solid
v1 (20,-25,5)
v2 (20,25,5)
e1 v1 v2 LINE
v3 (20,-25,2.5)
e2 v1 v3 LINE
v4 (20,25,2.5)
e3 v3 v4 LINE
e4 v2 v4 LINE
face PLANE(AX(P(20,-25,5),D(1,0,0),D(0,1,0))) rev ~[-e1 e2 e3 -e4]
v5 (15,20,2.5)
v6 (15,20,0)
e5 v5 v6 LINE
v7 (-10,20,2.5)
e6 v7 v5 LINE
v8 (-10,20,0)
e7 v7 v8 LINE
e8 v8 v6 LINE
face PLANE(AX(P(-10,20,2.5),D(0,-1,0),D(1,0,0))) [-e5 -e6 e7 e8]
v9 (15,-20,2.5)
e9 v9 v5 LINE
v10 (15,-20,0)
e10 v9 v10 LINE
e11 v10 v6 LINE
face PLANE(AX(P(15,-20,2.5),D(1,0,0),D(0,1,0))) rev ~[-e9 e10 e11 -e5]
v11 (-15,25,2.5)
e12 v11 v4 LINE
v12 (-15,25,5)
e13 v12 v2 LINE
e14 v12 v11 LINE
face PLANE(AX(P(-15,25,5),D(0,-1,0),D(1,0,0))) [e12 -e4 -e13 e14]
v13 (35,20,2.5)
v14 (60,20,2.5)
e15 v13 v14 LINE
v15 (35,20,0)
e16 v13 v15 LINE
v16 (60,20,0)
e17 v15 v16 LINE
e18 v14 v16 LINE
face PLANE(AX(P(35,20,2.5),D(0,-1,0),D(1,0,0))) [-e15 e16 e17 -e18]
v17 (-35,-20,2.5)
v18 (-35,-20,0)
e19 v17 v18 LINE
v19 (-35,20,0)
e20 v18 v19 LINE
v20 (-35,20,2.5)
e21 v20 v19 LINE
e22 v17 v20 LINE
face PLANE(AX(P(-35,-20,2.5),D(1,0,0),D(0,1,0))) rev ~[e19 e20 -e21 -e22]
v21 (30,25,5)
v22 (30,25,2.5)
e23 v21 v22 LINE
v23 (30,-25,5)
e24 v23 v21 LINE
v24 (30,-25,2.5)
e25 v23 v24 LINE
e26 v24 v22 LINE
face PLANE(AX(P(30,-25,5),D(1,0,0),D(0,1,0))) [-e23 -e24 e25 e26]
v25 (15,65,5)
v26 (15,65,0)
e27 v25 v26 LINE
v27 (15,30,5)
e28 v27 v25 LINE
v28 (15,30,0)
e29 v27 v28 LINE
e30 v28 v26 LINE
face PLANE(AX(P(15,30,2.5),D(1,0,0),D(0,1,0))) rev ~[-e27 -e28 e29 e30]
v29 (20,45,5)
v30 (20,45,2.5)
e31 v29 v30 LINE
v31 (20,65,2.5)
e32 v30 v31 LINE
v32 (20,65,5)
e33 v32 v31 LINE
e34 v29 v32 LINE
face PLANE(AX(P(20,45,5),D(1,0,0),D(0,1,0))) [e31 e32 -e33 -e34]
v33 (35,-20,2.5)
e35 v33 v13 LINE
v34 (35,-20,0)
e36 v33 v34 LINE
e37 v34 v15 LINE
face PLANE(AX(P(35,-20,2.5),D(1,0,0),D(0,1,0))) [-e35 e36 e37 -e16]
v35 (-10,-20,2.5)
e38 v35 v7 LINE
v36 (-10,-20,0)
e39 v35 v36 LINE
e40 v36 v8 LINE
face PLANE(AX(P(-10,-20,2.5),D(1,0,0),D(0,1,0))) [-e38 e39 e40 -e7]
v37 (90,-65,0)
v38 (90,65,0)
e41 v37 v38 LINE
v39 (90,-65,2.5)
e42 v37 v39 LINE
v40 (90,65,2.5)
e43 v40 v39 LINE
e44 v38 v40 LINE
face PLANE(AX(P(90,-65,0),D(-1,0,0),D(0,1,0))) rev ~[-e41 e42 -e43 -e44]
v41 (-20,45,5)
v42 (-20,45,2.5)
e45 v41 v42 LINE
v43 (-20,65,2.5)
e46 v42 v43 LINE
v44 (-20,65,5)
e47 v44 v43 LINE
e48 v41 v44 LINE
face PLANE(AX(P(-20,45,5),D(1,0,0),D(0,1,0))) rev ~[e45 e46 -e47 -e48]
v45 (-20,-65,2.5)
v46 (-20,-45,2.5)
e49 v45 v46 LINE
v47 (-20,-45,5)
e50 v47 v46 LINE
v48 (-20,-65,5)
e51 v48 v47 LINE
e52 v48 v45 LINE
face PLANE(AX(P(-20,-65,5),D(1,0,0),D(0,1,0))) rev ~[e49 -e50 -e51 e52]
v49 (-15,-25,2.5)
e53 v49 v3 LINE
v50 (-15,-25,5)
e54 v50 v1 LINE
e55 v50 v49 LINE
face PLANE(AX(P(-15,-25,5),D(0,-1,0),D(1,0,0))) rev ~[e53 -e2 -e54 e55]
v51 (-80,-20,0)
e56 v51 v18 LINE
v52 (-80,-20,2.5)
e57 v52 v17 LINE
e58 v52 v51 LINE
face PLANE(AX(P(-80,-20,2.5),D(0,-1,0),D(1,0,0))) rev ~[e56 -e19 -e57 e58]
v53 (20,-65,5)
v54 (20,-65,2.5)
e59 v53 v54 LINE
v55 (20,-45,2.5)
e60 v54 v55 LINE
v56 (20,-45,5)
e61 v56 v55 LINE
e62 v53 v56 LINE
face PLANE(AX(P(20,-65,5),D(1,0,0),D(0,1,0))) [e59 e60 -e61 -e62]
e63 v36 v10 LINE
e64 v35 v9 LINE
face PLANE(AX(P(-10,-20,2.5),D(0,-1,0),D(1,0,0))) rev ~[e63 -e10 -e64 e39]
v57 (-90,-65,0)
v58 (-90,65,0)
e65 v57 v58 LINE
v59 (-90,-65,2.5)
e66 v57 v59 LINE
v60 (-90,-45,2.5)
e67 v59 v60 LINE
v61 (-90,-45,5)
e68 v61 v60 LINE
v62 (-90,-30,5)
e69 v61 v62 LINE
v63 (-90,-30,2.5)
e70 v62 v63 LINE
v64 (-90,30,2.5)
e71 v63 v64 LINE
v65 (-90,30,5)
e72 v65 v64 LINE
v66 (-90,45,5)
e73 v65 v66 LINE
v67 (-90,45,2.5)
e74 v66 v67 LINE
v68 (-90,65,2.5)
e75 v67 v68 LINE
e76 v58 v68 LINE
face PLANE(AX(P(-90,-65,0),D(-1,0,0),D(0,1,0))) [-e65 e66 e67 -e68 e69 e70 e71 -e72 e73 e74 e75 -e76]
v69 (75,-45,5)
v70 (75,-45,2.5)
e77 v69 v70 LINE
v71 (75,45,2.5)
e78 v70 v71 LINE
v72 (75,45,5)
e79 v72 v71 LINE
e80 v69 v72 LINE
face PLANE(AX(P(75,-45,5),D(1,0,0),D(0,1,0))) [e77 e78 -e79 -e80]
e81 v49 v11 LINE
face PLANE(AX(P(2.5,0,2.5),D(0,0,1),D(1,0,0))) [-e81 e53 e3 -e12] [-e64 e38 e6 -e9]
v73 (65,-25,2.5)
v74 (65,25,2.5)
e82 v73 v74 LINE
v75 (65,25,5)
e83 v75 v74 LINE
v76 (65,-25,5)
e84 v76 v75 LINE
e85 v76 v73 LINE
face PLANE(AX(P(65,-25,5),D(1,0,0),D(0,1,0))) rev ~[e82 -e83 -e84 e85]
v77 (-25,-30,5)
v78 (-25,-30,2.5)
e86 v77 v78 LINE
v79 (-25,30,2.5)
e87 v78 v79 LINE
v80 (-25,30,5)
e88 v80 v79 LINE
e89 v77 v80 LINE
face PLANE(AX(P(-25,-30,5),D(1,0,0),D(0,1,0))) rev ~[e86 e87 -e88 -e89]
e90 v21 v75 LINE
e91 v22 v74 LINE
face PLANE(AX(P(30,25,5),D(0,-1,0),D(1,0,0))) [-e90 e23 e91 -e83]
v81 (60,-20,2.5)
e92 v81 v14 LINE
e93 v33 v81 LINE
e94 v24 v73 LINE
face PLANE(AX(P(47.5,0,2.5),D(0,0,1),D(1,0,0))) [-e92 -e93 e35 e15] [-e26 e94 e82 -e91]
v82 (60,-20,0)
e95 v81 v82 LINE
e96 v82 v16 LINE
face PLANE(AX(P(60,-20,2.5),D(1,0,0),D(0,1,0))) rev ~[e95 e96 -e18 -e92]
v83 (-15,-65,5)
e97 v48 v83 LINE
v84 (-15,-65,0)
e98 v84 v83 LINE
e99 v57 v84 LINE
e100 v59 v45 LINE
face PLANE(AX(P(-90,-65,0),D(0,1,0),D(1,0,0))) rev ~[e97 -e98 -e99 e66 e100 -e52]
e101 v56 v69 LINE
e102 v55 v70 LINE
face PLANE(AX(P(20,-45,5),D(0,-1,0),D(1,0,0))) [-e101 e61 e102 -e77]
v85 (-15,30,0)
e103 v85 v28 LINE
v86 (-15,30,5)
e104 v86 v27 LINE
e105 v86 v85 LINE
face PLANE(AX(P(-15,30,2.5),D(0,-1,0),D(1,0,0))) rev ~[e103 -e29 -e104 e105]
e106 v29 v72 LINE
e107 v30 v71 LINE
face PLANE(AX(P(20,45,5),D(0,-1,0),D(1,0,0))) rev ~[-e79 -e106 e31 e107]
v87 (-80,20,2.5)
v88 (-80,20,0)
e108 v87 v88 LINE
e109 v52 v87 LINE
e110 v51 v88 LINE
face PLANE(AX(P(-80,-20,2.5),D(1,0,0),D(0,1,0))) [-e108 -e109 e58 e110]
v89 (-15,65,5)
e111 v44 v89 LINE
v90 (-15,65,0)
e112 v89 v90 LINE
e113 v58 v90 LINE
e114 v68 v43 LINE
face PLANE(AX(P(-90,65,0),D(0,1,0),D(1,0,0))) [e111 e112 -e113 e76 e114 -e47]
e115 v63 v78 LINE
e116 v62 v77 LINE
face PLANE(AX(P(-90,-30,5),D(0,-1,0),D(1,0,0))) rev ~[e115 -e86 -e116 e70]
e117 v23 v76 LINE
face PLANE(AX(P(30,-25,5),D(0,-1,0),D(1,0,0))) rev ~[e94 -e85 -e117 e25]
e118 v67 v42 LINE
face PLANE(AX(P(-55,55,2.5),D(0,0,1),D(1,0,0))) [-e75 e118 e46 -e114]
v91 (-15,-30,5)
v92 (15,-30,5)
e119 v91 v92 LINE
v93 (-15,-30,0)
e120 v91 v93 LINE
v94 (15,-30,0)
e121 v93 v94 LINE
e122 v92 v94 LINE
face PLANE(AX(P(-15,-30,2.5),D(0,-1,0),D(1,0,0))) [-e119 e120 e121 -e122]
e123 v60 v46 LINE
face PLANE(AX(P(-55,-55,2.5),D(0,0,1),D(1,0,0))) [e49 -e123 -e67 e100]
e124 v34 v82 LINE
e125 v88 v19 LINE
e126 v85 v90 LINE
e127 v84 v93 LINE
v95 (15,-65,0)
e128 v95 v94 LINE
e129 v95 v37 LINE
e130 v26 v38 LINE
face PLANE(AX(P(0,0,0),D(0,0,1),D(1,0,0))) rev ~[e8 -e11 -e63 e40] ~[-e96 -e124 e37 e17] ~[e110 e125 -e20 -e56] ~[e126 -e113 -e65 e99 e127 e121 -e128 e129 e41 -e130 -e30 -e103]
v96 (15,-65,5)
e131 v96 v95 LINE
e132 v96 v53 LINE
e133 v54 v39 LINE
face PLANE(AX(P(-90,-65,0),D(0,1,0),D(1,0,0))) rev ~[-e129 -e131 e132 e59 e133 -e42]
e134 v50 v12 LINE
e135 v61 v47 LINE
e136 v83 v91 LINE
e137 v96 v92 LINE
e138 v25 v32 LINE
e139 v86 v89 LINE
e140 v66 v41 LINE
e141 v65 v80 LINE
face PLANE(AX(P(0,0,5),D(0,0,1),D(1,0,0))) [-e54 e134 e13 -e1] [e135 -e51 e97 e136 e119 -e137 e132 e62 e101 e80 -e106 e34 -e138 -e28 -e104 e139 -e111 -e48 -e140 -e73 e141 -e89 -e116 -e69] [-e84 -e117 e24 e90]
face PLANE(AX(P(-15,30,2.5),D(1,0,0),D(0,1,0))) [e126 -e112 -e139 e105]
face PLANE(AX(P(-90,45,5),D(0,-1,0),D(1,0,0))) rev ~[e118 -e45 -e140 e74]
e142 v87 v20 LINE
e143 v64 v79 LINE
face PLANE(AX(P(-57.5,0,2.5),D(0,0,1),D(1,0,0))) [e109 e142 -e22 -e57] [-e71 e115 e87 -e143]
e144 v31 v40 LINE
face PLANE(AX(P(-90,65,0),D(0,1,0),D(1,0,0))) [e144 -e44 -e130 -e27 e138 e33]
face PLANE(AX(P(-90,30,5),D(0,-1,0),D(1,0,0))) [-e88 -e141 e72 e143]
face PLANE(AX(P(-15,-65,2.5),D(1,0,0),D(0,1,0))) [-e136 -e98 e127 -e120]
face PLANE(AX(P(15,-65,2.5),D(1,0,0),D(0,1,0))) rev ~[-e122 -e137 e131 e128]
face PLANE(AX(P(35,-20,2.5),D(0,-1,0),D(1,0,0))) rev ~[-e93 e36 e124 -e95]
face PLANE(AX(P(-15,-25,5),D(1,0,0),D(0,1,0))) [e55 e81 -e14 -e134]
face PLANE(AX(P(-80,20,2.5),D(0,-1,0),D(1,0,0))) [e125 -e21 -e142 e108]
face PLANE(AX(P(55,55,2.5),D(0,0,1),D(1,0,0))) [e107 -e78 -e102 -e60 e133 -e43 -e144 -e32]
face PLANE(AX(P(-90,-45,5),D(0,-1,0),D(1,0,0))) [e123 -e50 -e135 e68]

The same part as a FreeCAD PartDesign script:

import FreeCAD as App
import Part
import Sketcher


def add_polygon(sketch, points):
    """Adds a closed chain of lines whose ends are joined by coincident constraints."""
    first, n = sketch.GeometryCount, len(points)
    for a, b in zip(points, points[1:] + points[:1]):
        sketch.addGeometry(Part.LineSegment(App.Vector(*a, 0), App.Vector(*b, 0)), False)
    for i in range(n):
        sketch.addConstraint(Sketcher.Constraint("Coincident", first + i, 2, first + (i + 1) % n, 1))

doc = App.newDocument("Part")
body = doc.addObject("PartDesign::Body", "Body")

# Sketch on XY plane
sketch1 = body.newObject("Sketcher::SketchObject", "Sketch")
sketch1.AttachmentSupport = (doc.getObject("XY_Plane"), [""])
sketch1.MapMode = "FlatFace"
add_polygon(sketch1, [(-90, 65), (-90, -65), (90, -65), (90, 65)])  # lines 0-3
sketch1.addConstraint(Sketcher.Constraint("Vertical", 0))
sketch1.addConstraint(Sketcher.Constraint("Horizontal", 1))
sketch1.addConstraint(Sketcher.Constraint("Vertical", 2))
sketch1.addConstraint(Sketcher.Constraint("Horizontal", 3))
sketch1.addConstraint(Sketcher.Constraint("Symmetric", 0, 2, 2, 2, -1, 1))
sketch1.addConstraint(Sketcher.Constraint("DistanceX", 1, 1, 1, 2, 180.0))
sketch1.addConstraint(Sketcher.Constraint("DistanceY", 0, 2, 0, 1, 130.0))
pad1 = body.newObject("PartDesign::Pad", "Pad")
pad1.Profile = sketch1
pad1.Length = 5

# Sketch on XY plane
sketch2 = body.newObject("Sketcher::SketchObject", "Sketch001")
sketch2.AttachmentSupport = (doc.getObject("XY_Plane"), [""])
sketch2.MapMode = "FlatFace"
sketch2.AttachmentOffset = App.Placement(App.Vector(0, 0, 5), App.Rotation())
add_polygon(sketch2, [(-90, 65), (-90, 45), (-20, 45), (-20, 65)])  # lines 0-3
add_polygon(sketch2, [(20, 65), (20, 45), (90, 45), (90, 65)])  # lines 4-7
add_polygon(sketch2, [(20, -45), (20, -65), (90, -65), (90, -45)])  # lines 8-11
add_polygon(sketch2, [(-90, -45), (-90, -65), (-20, -65), (-20, -45)])  # lines 12-15
sketch2.addConstraint(Sketcher.Constraint("Vertical", 0))
sketch2.addConstraint(Sketcher.Constraint("Horizontal", 1))
sketch2.addConstraint(Sketcher.Constraint("Vertical", 2))
sketch2.addConstraint(Sketcher.Constraint("Horizontal", 3))
sketch2.addConstraint(Sketcher.Constraint("Vertical", 4))
sketch2.addConstraint(Sketcher.Constraint("Horizontal", 5))
sketch2.addConstraint(Sketcher.Constraint("Vertical", 6))
sketch2.addConstraint(Sketcher.Constraint("Horizontal", 7))
sketch2.addConstraint(Sketcher.Constraint("Vertical", 8))
sketch2.addConstraint(Sketcher.Constraint("Horizontal", 9))
sketch2.addConstraint(Sketcher.Constraint("Vertical", 10))
sketch2.addConstraint(Sketcher.Constraint("Horizontal", 11))
sketch2.addConstraint(Sketcher.Constraint("Vertical", 12))
sketch2.addConstraint(Sketcher.Constraint("Horizontal", 13))
sketch2.addConstraint(Sketcher.Constraint("Vertical", 14))
sketch2.addConstraint(Sketcher.Constraint("Horizontal", 15))
sketch2.addConstraint(Sketcher.Constraint("Symmetric", 2, 2, 8, 2, -1, 1))
sketch2.addConstraint(Sketcher.Constraint("Symmetric", 0, 2, 10, 2, -1, 1))
sketch2.addConstraint(Sketcher.Constraint("Symmetric", 6, 2, 12, 2, -1, 1))
sketch2.addConstraint(Sketcher.Constraint("Symmetric", 4, 2, 14, 2, -1, 1))
sketch2.addConstraint(Sketcher.Constraint("Symmetric", 1, 2, 4, 2, -2))
sketch2.addConstraint(Sketcher.Constraint("Symmetric", 3, 2, 6, 2, -2))
sketch2.addConstraint(Sketcher.Constraint("DistanceX", 1, 1, 1, 2, 70.0))
sketch2.addConstraint(Sketcher.Constraint("DistanceY", 0, 2, 0, 1, 20.0))
sketch2.addConstraint(Sketcher.Constraint("DistanceX", 0, 2, -1, 1, 90.0))
sketch2.addConstraint(Sketcher.Constraint("DistanceY", -1, 1, 0, 2, 45.0))
pocket1 = body.newObject("PartDesign::Pocket", "Pocket")
pocket1.Profile = sketch2
pocket1.Length = 2.5

# Sketch on XY plane
sketch3 = body.newObject("Sketcher::SketchObject", "Sketch002")
sketch3.AttachmentSupport = (doc.getObject("XY_Plane"), [""])
sketch3.MapMode = "FlatFace"
sketch3.AttachmentOffset = App.Placement(App.Vector(0, 0, 5), App.Rotation())
add_polygon(sketch3, [(-90, 30), (-90, -30), (-25, -30), (-25, 30)])  # lines 0-3
add_polygon(sketch3, [(-15, 25), (-15, -25), (20, -25), (20, 25)])  # lines 4-7
add_polygon(sketch3, [(30, 25), (30, -25), (65, -25), (65, 25)])  # lines 8-11
sketch3.addConstraint(Sketcher.Constraint("Vertical", 0))
sketch3.addConstraint(Sketcher.Constraint("Horizontal", 1))
sketch3.addConstraint(Sketcher.Constraint("Vertical", 2))
sketch3.addConstraint(Sketcher.Constraint("Horizontal", 3))
sketch3.addConstraint(Sketcher.Constraint("Vertical", 4))
sketch3.addConstraint(Sketcher.Constraint("Horizontal", 5))
sketch3.addConstraint(Sketcher.Constraint("Vertical", 6))
sketch3.addConstraint(Sketcher.Constraint("Horizontal", 7))
sketch3.addConstraint(Sketcher.Constraint("Vertical", 8))
sketch3.addConstraint(Sketcher.Constraint("Horizontal", 9))
sketch3.addConstraint(Sketcher.Constraint("Vertical", 10))
sketch3.addConstraint(Sketcher.Constraint("Horizontal", 11))
sketch3.addConstraint(Sketcher.Constraint("Horizontal", 5, 2, 8, 2))
sketch3.addConstraint(Sketcher.Constraint("Horizontal", 7, 2, 10, 2))
sketch3.addConstraint(Sketcher.Constraint("Equal", 7, 9))
sketch3.addConstraint(Sketcher.Constraint("DistanceX", 1, 1, 1, 2, 65.0))
sketch3.addConstraint(Sketcher.Constraint("DistanceX", 5, 1, 5, 2, 35.0))
sketch3.addConstraint(Sketcher.Constraint("DistanceY", 0, 2, 0, 1, 60.0))
sketch3.addConstraint(Sketcher.Constraint("DistanceY", 4, 2, 4, 1, 50.0))
sketch3.addConstraint(Sketcher.Constraint("DistanceX", 0, 2, -1, 1, 90.0))
sketch3.addConstraint(Sketcher.Constraint("DistanceY", 0, 2, -1, 1, 30.0))
sketch3.addConstraint(Sketcher.Constraint("DistanceX", 4, 2, -1, 1, 15.0))
sketch3.addConstraint(Sketcher.Constraint("DistanceY", 4, 2, -1, 1, 25.0))
sketch3.addConstraint(Sketcher.Constraint("DistanceX", -1, 1, 8, 2, 30.0))
pocket2 = body.newObject("PartDesign::Pocket", "Pocket001")
pocket2.Profile = sketch3
pocket2.Length = 2.5

# Sketch on XY plane
sketch4 = body.newObject("Sketcher::SketchObject", "Sketch003")
sketch4.AttachmentSupport = (doc.getObject("XY_Plane"), [""])
sketch4.MapMode = "FlatFace"
sketch4.AttachmentOffset = App.Placement(App.Vector(0, 0, 2.5), App.Rotation())
add_polygon(sketch4, [(-15, 65), (-15, 30), (15, 30), (15, 65)])  # lines 0-3
add_polygon(sketch4, [(-15, -30), (-15, -65), (15, -65), (15, -30)])  # lines 4-7
add_polygon(sketch4, [(-80, 20), (-80, -20), (-35, -20), (-35, 20)])  # lines 8-11
add_polygon(sketch4, [(35, 20), (35, -20), (60, -20), (60, 20)])  # lines 12-15
add_polygon(sketch4, [(-10, 20), (-10, -20), (15, -20), (15, 20)])  # lines 16-19
sketch4.addConstraint(Sketcher.Constraint("Vertical", 0))
sketch4.addConstraint(Sketcher.Constraint("Horizontal", 1))
sketch4.addConstraint(Sketcher.Constraint("Vertical", 2))
sketch4.addConstraint(Sketcher.Constraint("Horizontal", 3))
sketch4.addConstraint(Sketcher.Constraint("Vertical", 4))
sketch4.addConstraint(Sketcher.Constraint("Horizontal", 5))
sketch4.addConstraint(Sketcher.Constraint("Vertical", 6))
sketch4.addConstraint(Sketcher.Constraint("Horizontal", 7))
sketch4.addConstraint(Sketcher.Constraint("Vertical", 8))
sketch4.addConstraint(Sketcher.Constraint("Horizontal", 9))
sketch4.addConstraint(Sketcher.Constraint("Vertical", 10))
sketch4.addConstraint(Sketcher.Constraint("Horizontal", 11))
sketch4.addConstraint(Sketcher.Constraint("Vertical", 12))
sketch4.addConstraint(Sketcher.Constraint("Horizontal", 13))
sketch4.addConstraint(Sketcher.Constraint("Vertical", 14))
sketch4.addConstraint(Sketcher.Constraint("Horizontal", 15))
sketch4.addConstraint(Sketcher.Constraint("Vertical", 16))
sketch4.addConstraint(Sketcher.Constraint("Horizontal", 17))
sketch4.addConstraint(Sketcher.Constraint("Vertical", 18))
sketch4.addConstraint(Sketcher.Constraint("Horizontal", 19))
sketch4.addConstraint(Sketcher.Constraint("Symmetric", 2, 2, 4, 2, -1, 1))
sketch4.addConstraint(Sketcher.Constraint("Symmetric", 0, 2, 6, 2, -1, 1))
sketch4.addConstraint(Sketcher.Constraint("Symmetric", 10, 2, 12, 2, -1, 1))
sketch4.addConstraint(Sketcher.Constraint("Horizontal", 9, 2, 12, 2))
sketch4.addConstraint(Sketcher.Constraint("Horizontal", 11, 2, 14, 2))
sketch4.addConstraint(Sketcher.Constraint("Horizontal", 13, 2, 16, 2))
sketch4.addConstraint(Sketcher.Constraint("Horizontal", 15, 2, 18, 2))
sketch4.addConstraint(Sketcher.Constraint("Vertical", 3, 2, 4, 2))
sketch4.addConstraint(Sketcher.Constraint("Vertical", 6, 2, 17, 2))
sketch4.addConstraint(Sketcher.Constraint("Equal", 15, 17))
sketch4.addConstraint(Sketcher.Constraint("DistanceX", 1, 1, 1, 2, 30.0))
sketch4.addConstraint(Sketcher.Constraint("DistanceX", 9, 1, 9, 2, 45.0))
sketch4.addConstraint(Sketcher.Constraint("DistanceX", 13, 1, 13, 2, 25.0))
sketch4.addConstraint(Sketcher.Constraint("DistanceY", 0, 2, 0, 1, 35.0))
sketch4.addConstraint(Sketcher.Constraint("DistanceY", 8, 2, 8, 1, 40.0))
sketch4.addConstraint(Sketcher.Constraint("DistanceY", -1, 1, 0, 2, 30.0))
sketch4.addConstraint(Sketcher.Constraint("DistanceX", 8, 2, -1, 1, 80.0))
pocket3 = body.newObject("PartDesign::Pocket", "Pocket002")
pocket3.Profile = sketch4
pocket3.Type = "ThroughAll"
pocket3.Midplane = True

# Sketch on XY plane
sketch5 = body.newObject("Sketcher::SketchObject", "Sketch004")
sketch5.AttachmentSupport = (doc.getObject("XY_Plane"), [""])
sketch5.MapMode = "FlatFace"
sketch5.AttachmentOffset = App.Placement(App.Vector(0, 0, 5), App.Rotation())
add_polygon(sketch5, [(75, 45), (75, -45), (90, -45), (90, 45)])  # lines 0-3
sketch5.addConstraint(Sketcher.Constraint("Vertical", 0))
sketch5.addConstraint(Sketcher.Constraint("Horizontal", 1))
sketch5.addConstraint(Sketcher.Constraint("Vertical", 2))
sketch5.addConstraint(Sketcher.Constraint("Horizontal", 3))
sketch5.addConstraint(Sketcher.Constraint("DistanceX", 1, 1, 1, 2, 15.0))
sketch5.addConstraint(Sketcher.Constraint("DistanceY", 0, 2, 0, 1, 90.0))
sketch5.addConstraint(Sketcher.Constraint("DistanceX", -1, 1, 0, 2, 75.0))
sketch5.addConstraint(Sketcher.Constraint("DistanceY", 0, 2, -1, 1, 45.0))
pocket4 = body.newObject("PartDesign::Pocket", "Pocket003")
pocket4.Profile = sketch5
pocket4.Length = 2.5

doc.recompute()
